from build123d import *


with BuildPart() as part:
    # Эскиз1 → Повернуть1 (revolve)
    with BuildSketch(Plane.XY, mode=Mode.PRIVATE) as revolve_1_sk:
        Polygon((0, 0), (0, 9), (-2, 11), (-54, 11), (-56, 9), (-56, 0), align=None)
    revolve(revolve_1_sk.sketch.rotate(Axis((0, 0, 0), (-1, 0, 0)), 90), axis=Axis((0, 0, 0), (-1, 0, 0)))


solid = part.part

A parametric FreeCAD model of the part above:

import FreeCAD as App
import Part
import Sketcher

V = App.Vector

doc = App.newDocument("Part")
params = doc.addObject("Spreadsheet::Sheet", "Params")
for row, (alias, value) in enumerate([
    ("sketch1_width", "52 mm"),
    ("sketch1_width2", "56 mm"),
    ("sketch1_height", "9 mm"),
    ("revolution_angle", "360 deg"),
], start=1):
    params.set(f"A{row}", alias)
    params.set(f"B{row}", "=" + value)
    params.setAlias(f"B{row}", alias)

body = doc.addObject("PartDesign::Body", "Body")

sketch1 = body.newObject("Sketcher::SketchObject", "Sketch")
sketch1.AttachmentSupport = (doc.getObject("XY_Plane"), [""])
sketch1.MapMode = "FlatFace"
sketch1.addGeometry(Part.LineSegment(V(0, 0, 0), V(0, 9, 0)), False)
sketch1.addGeometry(Part.LineSegment(V(0, 9, 0), V(-2, 11, 0)), False)
sketch1.addGeometry(Part.LineSegment(V(-2, 11, 0), V(-54, 11, 0)), False)
sketch1.addGeometry(Part.LineSegment(V(-54, 11, 0), V(-56, 9, 0)), False)
sketch1.addGeometry(Part.LineSegment(V(-56, 9, 0), V(-56, 0, 0)), False)
sketch1.addGeometry(Part.LineSegment(V(-56, 0, 0), V(0, 0, 0)), False)
sketch1.addConstraint(Sketcher.Constraint("Coincident", 0, 2, 1, 1))
sketch1.addConstraint(Sketcher.Constraint("Coincident", 1, 2, 2, 1))
sketch1.addConstraint(Sketcher.Constraint("Coincident", 2, 2, 3, 1))
sketch1.addConstraint(Sketcher.Constraint("Coincident", 3, 2, 4, 1))
sketch1.addConstraint(Sketcher.Constraint("Coincident", 4, 2, 5, 1))
sketch1.addConstraint(Sketcher.Constraint("Coincident", 5, 2, 0, 1))
sketch1.addConstraint(Sketcher.Constraint("Vertical", 0))
sketch1.addConstraint(Sketcher.Constraint("Horizontal", 2))
sketch1.addConstraint(Sketcher.Constraint("Vertical", 4))
sketch1.addConstraint(Sketcher.Constraint("Horizontal", 5))
sketch1.addConstraint(Sketcher.Constraint("Coincident", 5, 2, -1, 1))
sketch1.addConstraint(Sketcher.Constraint("Perpendicular", 1, 3))
sketch1.addConstraint(Sketcher.Constraint("Horizontal", 0, 2, 3, 2))
sketch1.addConstraint(Sketcher.Constraint("Equal", 1, 3))
sketch1.addConstraint(Sketcher.Constraint("DistanceX", 2, 2, 2, 1, 52.0))
sketch1.addConstraint(Sketcher.Constraint("DistanceX", 5, 1, 5, 2, 56.0))
sketch1.addConstraint(Sketcher.Constraint("DistanceY", 0, 1, 0, 2, 9.0))
sketch1.setExpression("Constraints[14]", "Params.sketch1_width")
sketch1.setExpression("Constraints[15]", "Params.sketch1_width2")
sketch1.setExpression("Constraints[16]", "Params.sketch1_height")
revolution = body.newObject("PartDesign::Revolution", "Revolution")
revolution.Profile = sketch1
revolution.ReferenceAxis = (sketch1, ["H_Axis"])
revolution.setExpression("Angle", "Params.revolution_angle")

doc.recompute()
